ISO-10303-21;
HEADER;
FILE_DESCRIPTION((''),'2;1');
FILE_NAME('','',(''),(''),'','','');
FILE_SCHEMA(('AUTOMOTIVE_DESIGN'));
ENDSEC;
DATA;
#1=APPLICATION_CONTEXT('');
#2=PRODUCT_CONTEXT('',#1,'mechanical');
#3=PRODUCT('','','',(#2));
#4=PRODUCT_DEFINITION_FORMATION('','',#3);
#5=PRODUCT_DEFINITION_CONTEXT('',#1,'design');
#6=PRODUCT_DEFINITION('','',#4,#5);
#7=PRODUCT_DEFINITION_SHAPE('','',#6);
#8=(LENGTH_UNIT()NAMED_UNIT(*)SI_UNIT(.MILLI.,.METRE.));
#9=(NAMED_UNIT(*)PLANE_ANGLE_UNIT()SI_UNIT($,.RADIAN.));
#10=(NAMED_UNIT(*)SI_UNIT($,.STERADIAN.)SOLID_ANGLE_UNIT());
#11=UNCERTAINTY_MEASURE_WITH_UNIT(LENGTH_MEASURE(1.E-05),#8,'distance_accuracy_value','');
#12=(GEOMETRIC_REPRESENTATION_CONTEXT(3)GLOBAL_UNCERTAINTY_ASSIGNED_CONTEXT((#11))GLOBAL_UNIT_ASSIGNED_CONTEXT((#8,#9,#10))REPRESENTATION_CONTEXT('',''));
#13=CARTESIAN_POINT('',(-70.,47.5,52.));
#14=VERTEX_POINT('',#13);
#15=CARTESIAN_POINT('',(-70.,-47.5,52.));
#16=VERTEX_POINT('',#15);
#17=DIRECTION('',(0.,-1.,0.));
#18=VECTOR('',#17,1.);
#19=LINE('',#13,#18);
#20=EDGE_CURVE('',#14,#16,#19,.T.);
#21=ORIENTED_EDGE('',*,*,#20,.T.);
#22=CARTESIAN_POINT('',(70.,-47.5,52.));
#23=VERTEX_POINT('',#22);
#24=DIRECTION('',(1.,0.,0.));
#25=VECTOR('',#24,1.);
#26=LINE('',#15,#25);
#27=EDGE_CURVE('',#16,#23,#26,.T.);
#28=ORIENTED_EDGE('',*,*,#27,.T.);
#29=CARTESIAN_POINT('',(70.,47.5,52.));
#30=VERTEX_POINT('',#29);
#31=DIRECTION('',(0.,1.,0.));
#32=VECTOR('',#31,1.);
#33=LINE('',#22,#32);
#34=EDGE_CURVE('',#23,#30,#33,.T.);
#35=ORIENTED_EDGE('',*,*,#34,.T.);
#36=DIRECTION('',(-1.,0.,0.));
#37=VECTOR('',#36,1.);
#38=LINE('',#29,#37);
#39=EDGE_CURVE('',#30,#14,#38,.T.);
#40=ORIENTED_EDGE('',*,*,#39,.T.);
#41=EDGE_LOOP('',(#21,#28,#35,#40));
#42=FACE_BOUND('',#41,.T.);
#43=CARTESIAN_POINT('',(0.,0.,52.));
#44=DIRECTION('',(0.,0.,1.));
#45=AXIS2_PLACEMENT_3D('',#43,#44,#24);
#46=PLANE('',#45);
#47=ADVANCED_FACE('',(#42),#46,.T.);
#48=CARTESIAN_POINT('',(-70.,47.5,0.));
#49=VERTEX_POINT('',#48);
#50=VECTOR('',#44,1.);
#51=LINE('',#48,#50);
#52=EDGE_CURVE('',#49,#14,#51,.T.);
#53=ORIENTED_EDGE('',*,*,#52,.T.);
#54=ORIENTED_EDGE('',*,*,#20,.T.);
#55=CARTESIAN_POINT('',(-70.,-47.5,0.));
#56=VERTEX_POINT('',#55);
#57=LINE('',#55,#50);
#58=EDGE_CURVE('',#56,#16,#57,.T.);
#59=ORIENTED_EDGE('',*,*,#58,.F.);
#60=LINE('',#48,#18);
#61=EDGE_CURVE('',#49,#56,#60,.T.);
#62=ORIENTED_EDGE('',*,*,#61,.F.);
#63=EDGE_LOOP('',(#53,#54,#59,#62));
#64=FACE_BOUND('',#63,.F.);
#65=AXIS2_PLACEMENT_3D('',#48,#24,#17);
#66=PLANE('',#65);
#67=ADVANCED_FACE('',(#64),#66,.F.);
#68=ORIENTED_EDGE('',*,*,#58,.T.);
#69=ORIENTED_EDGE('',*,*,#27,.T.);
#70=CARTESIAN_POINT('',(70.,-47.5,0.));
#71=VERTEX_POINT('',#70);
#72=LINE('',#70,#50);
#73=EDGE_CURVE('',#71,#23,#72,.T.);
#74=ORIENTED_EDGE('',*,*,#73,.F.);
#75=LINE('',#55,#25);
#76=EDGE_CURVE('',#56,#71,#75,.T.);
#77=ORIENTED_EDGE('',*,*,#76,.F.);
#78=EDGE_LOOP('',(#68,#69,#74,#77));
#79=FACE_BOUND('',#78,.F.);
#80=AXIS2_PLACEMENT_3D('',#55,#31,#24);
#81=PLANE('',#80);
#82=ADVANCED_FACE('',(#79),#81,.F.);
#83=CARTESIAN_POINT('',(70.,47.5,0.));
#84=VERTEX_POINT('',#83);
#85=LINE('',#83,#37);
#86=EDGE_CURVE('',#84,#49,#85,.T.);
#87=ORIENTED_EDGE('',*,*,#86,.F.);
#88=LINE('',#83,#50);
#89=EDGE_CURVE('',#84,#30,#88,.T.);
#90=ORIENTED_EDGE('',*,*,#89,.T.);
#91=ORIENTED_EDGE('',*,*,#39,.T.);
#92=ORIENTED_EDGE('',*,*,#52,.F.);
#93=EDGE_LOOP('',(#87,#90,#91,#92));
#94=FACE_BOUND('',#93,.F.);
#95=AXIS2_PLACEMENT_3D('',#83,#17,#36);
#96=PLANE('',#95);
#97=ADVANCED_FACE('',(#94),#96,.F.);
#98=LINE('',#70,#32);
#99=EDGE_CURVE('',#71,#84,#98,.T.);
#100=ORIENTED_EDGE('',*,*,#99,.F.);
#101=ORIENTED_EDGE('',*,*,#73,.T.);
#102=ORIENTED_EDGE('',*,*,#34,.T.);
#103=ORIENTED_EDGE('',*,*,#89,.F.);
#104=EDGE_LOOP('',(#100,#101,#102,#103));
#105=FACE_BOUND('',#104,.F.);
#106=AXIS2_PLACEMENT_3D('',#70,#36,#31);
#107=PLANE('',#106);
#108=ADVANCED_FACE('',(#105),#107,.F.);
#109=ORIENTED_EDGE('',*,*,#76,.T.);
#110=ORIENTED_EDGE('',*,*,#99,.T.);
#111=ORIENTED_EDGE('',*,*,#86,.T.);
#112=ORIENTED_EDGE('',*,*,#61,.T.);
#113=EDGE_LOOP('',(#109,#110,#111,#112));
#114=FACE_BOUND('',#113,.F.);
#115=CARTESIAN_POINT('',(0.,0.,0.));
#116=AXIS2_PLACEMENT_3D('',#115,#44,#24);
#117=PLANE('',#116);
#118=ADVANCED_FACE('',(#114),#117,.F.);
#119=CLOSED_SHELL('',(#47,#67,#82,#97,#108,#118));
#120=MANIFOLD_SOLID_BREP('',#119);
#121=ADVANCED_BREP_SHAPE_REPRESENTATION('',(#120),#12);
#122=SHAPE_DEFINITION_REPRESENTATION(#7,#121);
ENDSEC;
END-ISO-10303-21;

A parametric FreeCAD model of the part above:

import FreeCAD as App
import Part
import Sketcher
from FreeCAD import Vector
Q = App.Units.Quantity


def add_polygon(sketch, points):
    """Adds a closed chain of lines whose ends are joined by coincident constraints."""
    first, n = sketch.GeometryCount, len(points)
    for a, b in zip(points, points[1:] + points[:1]):
        sketch.addGeometry(Part.LineSegment(App.Vector(*a, 0), App.Vector(*b, 0)), False)
    for i in range(n):
        sketch.addConstraint(Sketcher.Constraint("Coincident", first + i, 2, first + (i + 1) % n, 1))

doc = App.newDocument("Part")
body = doc.addObject("PartDesign::Body", "Body")

sketch1 = body.newObject("Sketcher::SketchObject", "Sketch")
sketch1.AttachmentSupport = (doc.getObject("XY_Plane"), [""])
sketch1.MapMode = "FlatFace"
add_polygon(sketch1, [(70, -47.5), (70, 47.5), (-70, 47.5), (-70, -47.5)])
sketch1.addConstraint(Sketcher.Constraint("Vertical", 0))
sketch1.addConstraint(Sketcher.Constraint("Horizontal", 1))
sketch1.addConstraint(Sketcher.Constraint("Vertical", 2))
sketch1.addConstraint(Sketcher.Constraint("Horizontal", 3))
sketch1.addConstraint(Sketcher.Constraint("Symmetric", 0, 2, 2, 2, -1, 1))
sketch1.addConstraint(Sketcher.Constraint("DistanceX", 1, 2, 1, 1, Q("140 mm")))
sketch1.addConstraint(Sketcher.Constraint("DistanceY", 0, 1, 0, 2, Q("95 mm")))
pad1 = body.newObject("PartDesign::Pad", "Pad")
pad1.Profile = sketch1
pad1.Length = 52

doc.recompute()
